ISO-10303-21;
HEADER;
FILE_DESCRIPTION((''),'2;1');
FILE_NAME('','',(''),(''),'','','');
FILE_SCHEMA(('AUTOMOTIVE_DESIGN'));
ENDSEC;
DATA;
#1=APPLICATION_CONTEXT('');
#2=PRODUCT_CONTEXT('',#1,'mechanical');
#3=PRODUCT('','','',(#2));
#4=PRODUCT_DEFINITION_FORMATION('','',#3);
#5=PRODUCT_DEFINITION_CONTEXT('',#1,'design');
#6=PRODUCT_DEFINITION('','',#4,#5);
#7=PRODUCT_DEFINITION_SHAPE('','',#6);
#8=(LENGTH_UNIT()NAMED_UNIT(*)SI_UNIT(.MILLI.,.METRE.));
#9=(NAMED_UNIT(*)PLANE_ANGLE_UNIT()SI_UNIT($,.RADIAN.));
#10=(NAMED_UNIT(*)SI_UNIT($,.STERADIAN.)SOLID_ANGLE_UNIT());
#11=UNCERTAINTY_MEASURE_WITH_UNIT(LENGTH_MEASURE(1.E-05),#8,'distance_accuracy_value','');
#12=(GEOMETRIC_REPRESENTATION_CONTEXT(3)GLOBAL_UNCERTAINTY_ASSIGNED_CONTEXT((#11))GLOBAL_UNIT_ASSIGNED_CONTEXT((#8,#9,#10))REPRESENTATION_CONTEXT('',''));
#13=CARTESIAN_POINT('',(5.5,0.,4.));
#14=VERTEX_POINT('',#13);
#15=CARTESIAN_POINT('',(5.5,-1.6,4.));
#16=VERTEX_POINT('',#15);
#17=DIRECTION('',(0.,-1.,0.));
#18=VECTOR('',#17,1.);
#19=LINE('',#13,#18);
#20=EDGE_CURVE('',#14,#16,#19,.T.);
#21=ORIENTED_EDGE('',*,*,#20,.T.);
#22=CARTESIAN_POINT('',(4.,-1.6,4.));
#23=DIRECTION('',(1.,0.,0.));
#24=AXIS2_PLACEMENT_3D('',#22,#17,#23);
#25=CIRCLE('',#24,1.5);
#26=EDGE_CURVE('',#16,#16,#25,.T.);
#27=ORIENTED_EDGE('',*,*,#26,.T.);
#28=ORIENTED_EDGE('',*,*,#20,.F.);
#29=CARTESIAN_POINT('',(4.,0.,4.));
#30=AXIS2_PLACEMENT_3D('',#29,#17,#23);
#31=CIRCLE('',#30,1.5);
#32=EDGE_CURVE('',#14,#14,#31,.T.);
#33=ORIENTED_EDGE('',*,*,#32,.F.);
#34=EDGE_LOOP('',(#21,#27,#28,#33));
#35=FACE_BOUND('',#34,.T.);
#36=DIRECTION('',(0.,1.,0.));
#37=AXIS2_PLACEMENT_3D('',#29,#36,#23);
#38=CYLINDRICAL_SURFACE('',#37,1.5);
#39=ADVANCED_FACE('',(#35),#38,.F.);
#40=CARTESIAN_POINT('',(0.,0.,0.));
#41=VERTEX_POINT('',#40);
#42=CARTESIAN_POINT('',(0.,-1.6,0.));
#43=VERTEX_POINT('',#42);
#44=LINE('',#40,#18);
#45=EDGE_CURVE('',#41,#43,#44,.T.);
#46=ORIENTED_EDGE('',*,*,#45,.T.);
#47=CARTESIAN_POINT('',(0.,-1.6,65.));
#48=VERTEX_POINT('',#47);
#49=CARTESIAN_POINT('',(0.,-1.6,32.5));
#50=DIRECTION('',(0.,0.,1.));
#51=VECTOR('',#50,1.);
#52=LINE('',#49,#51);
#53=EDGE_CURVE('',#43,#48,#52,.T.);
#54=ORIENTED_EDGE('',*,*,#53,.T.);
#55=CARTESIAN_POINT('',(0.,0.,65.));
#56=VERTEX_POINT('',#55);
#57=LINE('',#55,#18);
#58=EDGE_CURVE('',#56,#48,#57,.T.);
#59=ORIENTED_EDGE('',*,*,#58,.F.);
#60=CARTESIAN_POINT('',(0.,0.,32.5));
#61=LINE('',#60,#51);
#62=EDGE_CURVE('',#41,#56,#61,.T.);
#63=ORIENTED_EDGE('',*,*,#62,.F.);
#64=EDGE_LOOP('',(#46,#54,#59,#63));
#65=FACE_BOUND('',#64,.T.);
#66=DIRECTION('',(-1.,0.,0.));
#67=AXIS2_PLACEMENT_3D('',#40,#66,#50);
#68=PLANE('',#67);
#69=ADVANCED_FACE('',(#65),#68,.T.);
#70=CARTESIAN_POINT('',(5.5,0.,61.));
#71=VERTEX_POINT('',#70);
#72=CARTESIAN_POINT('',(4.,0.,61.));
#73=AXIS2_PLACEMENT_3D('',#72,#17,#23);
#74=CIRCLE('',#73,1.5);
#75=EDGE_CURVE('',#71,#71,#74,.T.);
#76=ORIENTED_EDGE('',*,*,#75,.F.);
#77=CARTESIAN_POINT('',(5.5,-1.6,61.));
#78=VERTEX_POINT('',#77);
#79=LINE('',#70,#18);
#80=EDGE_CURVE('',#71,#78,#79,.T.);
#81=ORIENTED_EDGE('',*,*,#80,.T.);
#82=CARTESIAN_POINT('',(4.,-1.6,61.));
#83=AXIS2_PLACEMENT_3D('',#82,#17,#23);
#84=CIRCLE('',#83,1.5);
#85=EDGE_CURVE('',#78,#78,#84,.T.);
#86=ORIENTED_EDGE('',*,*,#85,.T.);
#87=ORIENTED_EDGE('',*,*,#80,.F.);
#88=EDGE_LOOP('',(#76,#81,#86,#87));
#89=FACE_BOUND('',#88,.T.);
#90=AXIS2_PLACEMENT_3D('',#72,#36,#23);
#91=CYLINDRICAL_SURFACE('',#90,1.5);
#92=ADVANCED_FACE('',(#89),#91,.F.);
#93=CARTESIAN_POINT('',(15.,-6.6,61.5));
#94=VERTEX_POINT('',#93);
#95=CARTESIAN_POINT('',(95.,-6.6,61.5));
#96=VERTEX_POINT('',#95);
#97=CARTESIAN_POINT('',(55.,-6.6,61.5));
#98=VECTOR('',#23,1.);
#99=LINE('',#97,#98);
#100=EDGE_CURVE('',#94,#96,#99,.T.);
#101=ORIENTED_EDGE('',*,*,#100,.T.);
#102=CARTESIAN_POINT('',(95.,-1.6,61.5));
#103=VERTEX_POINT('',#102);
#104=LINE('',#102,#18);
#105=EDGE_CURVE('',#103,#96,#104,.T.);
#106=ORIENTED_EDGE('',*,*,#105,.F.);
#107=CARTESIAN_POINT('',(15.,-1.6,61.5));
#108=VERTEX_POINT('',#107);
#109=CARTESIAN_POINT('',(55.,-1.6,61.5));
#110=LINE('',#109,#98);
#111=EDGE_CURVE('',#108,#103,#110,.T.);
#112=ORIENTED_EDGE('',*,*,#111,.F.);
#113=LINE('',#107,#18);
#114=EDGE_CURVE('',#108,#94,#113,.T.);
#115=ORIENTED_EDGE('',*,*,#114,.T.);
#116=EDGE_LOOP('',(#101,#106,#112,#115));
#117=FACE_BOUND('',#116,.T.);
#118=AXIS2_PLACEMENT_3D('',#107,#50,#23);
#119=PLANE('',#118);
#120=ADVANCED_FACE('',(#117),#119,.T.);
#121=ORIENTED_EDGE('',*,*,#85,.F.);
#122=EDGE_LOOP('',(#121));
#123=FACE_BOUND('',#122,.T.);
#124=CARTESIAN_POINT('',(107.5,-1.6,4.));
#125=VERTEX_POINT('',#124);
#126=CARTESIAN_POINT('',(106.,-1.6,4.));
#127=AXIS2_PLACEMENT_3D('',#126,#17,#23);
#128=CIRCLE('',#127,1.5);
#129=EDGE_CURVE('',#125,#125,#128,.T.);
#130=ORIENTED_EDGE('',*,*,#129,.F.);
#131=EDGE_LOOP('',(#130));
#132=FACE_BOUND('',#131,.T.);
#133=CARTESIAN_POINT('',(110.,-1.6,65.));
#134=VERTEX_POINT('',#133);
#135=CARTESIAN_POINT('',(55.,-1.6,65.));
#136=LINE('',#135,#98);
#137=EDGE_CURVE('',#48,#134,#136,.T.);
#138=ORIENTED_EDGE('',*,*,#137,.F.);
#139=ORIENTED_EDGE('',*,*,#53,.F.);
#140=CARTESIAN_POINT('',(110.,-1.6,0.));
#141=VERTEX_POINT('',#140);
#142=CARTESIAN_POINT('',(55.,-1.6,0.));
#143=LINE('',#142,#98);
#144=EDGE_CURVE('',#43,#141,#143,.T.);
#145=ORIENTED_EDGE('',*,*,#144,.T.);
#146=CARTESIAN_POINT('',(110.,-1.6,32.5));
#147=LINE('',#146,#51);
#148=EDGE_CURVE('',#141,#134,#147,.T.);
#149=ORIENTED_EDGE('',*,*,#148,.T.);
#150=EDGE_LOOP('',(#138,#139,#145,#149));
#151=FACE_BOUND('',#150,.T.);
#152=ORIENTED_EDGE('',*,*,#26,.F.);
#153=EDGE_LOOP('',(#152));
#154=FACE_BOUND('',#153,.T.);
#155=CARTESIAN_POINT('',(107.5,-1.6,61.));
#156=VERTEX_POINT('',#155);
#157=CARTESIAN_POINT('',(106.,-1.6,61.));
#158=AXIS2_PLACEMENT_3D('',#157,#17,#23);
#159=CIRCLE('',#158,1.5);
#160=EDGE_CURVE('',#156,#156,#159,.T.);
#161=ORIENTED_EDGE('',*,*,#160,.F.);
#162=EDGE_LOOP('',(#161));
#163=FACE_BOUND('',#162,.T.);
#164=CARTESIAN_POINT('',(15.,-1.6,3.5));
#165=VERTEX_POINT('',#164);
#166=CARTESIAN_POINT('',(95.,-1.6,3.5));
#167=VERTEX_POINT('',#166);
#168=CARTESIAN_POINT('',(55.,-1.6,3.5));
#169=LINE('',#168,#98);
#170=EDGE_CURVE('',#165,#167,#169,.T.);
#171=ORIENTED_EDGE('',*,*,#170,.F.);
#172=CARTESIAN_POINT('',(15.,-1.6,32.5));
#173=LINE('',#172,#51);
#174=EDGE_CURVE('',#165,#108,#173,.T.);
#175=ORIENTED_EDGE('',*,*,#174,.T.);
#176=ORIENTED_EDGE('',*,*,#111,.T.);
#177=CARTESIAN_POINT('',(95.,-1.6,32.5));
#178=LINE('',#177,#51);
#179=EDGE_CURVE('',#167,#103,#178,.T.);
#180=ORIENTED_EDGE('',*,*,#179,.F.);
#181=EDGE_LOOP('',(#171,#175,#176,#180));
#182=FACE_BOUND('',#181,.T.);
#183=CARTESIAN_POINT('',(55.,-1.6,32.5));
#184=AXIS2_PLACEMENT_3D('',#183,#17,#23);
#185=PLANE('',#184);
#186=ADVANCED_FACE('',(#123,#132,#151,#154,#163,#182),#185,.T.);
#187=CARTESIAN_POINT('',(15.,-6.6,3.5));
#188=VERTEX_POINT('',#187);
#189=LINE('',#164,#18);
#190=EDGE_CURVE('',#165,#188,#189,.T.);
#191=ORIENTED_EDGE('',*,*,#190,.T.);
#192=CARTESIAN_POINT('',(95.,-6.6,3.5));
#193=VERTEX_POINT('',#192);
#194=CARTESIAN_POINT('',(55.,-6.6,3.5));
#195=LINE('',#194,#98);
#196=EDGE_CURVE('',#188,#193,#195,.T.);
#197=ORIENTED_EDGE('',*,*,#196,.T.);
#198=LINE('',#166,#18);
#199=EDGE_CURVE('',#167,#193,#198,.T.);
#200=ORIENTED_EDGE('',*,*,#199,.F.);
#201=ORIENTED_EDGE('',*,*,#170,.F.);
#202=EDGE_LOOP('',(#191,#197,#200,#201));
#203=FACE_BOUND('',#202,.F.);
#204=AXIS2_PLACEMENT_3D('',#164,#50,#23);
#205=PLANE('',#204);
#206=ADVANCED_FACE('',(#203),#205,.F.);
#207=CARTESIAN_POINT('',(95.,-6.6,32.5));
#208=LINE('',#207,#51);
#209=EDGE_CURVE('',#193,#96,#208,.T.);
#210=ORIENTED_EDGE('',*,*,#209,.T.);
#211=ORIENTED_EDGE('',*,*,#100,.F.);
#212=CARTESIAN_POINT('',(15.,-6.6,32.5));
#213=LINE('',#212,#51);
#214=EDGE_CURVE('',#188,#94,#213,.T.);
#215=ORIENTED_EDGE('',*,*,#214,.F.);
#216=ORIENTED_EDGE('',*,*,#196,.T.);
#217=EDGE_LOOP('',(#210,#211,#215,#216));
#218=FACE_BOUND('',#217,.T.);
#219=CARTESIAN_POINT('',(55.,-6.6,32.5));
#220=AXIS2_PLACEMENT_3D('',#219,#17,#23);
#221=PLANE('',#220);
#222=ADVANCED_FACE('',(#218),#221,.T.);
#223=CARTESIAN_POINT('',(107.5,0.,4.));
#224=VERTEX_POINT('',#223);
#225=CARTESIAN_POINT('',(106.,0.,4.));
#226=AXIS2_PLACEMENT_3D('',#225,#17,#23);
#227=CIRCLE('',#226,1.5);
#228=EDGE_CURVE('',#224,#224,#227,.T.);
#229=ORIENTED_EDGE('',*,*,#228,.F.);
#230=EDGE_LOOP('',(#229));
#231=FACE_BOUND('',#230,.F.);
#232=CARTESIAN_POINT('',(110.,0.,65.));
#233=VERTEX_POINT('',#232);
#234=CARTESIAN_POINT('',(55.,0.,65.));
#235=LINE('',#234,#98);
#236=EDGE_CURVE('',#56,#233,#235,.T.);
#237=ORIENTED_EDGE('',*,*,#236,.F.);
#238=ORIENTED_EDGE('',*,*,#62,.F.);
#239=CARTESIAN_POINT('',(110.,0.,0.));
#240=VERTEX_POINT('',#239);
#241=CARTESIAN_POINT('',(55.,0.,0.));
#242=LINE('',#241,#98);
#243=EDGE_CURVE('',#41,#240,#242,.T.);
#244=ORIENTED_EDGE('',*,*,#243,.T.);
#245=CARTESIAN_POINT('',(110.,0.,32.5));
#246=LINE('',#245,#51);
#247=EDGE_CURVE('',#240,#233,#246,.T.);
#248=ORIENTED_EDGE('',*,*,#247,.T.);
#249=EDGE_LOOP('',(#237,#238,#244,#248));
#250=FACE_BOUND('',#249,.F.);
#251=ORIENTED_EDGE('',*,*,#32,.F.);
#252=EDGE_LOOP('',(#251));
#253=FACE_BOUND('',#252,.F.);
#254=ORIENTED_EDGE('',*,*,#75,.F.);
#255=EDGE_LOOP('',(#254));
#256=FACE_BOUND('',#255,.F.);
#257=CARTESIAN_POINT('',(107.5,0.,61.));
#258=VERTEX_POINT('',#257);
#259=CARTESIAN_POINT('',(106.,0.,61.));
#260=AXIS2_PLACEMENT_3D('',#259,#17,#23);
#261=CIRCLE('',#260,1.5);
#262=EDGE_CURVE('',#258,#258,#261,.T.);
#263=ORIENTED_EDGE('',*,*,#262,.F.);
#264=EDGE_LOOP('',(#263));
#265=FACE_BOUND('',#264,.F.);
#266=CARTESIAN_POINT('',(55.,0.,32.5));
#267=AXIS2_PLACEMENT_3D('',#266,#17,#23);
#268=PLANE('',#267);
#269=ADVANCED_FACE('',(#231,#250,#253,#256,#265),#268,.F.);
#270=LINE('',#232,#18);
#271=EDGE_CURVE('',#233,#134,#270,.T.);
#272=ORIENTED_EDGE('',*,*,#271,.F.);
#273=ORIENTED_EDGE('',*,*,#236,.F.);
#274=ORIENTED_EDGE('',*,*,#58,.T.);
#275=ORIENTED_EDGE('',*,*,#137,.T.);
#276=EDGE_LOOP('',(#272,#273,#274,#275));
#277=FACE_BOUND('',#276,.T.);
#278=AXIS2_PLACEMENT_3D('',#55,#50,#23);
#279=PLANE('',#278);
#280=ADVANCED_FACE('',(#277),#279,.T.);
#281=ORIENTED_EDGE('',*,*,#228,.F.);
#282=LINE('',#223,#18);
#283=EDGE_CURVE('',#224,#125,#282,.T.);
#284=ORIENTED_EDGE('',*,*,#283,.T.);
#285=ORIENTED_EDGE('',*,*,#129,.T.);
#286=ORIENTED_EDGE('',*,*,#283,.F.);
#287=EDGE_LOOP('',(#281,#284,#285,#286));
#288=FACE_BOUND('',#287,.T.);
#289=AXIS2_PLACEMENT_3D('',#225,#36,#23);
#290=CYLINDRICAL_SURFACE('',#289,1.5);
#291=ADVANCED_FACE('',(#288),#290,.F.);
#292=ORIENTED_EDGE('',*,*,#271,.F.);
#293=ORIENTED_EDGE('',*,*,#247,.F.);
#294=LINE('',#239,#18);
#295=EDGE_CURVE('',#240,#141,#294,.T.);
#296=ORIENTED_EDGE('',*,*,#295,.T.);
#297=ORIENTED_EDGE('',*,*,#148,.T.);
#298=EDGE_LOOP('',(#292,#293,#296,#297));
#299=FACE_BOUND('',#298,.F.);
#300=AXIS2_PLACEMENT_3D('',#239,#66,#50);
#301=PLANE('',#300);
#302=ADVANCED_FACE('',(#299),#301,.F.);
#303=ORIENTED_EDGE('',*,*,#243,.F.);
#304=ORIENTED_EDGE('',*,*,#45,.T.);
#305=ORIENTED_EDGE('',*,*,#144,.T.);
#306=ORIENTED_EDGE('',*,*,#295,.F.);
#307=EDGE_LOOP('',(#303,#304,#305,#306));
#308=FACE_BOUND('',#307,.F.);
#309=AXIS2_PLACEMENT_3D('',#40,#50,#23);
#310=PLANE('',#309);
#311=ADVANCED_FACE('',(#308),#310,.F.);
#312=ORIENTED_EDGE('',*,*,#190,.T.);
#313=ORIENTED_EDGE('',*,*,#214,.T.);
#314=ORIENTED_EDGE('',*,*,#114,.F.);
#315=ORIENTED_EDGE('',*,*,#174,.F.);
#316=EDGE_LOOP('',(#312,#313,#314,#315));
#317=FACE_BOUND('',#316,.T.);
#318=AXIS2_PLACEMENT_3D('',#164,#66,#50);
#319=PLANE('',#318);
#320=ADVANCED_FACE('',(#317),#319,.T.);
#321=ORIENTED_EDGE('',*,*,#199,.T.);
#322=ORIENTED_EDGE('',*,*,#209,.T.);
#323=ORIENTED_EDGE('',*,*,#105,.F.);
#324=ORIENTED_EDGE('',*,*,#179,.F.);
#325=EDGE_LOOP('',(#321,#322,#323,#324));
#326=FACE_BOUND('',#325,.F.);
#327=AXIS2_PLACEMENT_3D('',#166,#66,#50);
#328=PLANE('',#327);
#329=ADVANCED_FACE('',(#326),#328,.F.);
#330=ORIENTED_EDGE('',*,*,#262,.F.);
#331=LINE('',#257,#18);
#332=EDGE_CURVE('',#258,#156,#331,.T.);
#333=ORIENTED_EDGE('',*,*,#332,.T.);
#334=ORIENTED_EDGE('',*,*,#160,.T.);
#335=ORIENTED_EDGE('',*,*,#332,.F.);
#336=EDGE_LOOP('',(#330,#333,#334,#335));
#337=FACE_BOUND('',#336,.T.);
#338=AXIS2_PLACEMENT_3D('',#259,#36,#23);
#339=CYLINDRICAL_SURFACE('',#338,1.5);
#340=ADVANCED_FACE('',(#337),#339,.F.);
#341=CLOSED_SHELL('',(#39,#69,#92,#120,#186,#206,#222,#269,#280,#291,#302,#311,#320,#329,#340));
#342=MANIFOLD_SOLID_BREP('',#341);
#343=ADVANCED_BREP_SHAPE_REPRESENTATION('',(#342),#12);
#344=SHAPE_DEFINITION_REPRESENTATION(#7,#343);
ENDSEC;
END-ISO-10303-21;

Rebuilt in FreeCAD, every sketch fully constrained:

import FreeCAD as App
import Part
import Sketcher

V = App.Vector

doc = App.newDocument("Part")
body = doc.addObject("PartDesign::Body", "Body")

sketch1 = body.newObject("Sketcher::SketchObject", "Sketch")
sketch1.AttachmentSupport = (doc.getObject("XZ_Plane"), [""])
sketch1.MapMode = "FlatFace"
sketch1.addGeometry(Part.LineSegment(V(0, 65, 0), V(0, 0, 0)), False)
sketch1.addGeometry(Part.LineSegment(V(0, 0, 0), V(110, 0, 0)), False)
sketch1.addGeometry(Part.LineSegment(V(110, 0, 0), V(110, 65, 0)), False)
sketch1.addGeometry(Part.LineSegment(V(110, 65, 0), V(0, 65, 0)), False)
sketch1.addGeometry(Part.Circle(V(4, 4, 0), V(0, 0, 1), 1.5), False)
sketch1.addGeometry(Part.Circle(V(106, 4, 0), V(0, 0, 1), 1.5), False)
sketch1.addGeometry(Part.Circle(V(4, 61, 0), V(0, 0, 1), 1.5), False)
sketch1.addGeometry(Part.Circle(V(106, 61, 0), V(0, 0, 1), 1.5), False)
sketch1.addConstraint(Sketcher.Constraint("Coincident", 0, 2, 1, 1))
sketch1.addConstraint(Sketcher.Constraint("Coincident", 1, 2, 2, 1))
sketch1.addConstraint(Sketcher.Constraint("Coincident", 2, 2, 3, 1))
sketch1.addConstraint(Sketcher.Constraint("Coincident", 3, 2, 0, 1))
sketch1.addConstraint(Sketcher.Constraint("Vertical", 0))
sketch1.addConstraint(Sketcher.Constraint("Horizontal", 1))
sketch1.addConstraint(Sketcher.Constraint("Vertical", 2))
sketch1.addConstraint(Sketcher.Constraint("Horizontal", 3))
sketch1.addConstraint(Sketcher.Constraint("Coincident", 0, 2, -1, 1))
sketch1.addConstraint(Sketcher.Constraint("Equal", 4, 5))
sketch1.addConstraint(Sketcher.Constraint("Equal", 5, 6))
sketch1.addConstraint(Sketcher.Constraint("Equal", 6, 7))
sketch1.addConstraint(Sketcher.Constraint("Horizontal", 4, 3, 5, 3))
sketch1.addConstraint(Sketcher.Constraint("Horizontal", 6, 3, 7, 3))
sketch1.addConstraint(Sketcher.Constraint("Vertical", 4, 3, 6, 3))
sketch1.addConstraint(Sketcher.Constraint("Vertical", 5, 3, 7, 3))
sketch1.addConstraint(Sketcher.Constraint("Diameter", 4, 3.0))
sketch1.addConstraint(Sketcher.Constraint("DistanceX", 1, 1, 1, 2, 110.0))
sketch1.addConstraint(Sketcher.Constraint("DistanceY", 0, 2, 0, 1, 65.0))
sketch1.addConstraint(Sketcher.Constraint("DistanceX", -1, 1, 4, 3, 4.0))
sketch1.addConstraint(Sketcher.Constraint("DistanceY", -1, 1, 4, 3, 4.0))
sketch1.addConstraint(Sketcher.Constraint("DistanceX", -1, 1, 5, 3, 106.0))
sketch1.addConstraint(Sketcher.Constraint("DistanceY", -1, 1, 6, 3, 61.0))
pad1 = body.newObject("PartDesign::Pad", "Pad")
pad1.Profile = sketch1
pad1.Length = 1.6

sketch2 = body.newObject("Sketcher::SketchObject", "Sketch001")
sketch2.AttachmentSupport = (doc.getObject("XZ_Plane"), [""])
sketch2.MapMode = "FlatFace"
sketch2.AttachmentOffset = App.Placement(V(0, 0, 1.6), App.Rotation())
sketch2.addGeometry(Part.LineSegment(V(15, 62, 0), V(15, 4, 0)), False)
sketch2.addGeometry(Part.LineSegment(V(15, 4, 0), V(95, 4, 0)), False)
sketch2.addGeometry(Part.LineSegment(V(95, 4, 0), V(95, 62, 0)), False)
sketch2.addGeometry(Part.LineSegment(V(95, 62, 0), V(15, 62, 0)), False)
sketch2.addConstraint(Sketcher.Constraint("Coincident", 0, 2, 1, 1))
sketch2.addConstraint(Sketcher.Constraint("Coincident", 1, 2, 2, 1))
sketch2.addConstraint(Sketcher.Constraint("Coincident", 2, 2, 3, 1))
sketch2.addConstraint(Sketcher.Constraint("Coincident", 3, 2, 0, 1))
sketch2.addConstraint(Sketcher.Constraint("Vertical", 0))
sketch2.addConstraint(Sketcher.Constraint("Horizontal", 1))
sketch2.addConstraint(Sketcher.Constraint("Vertical", 2))
sketch2.addConstraint(Sketcher.Constraint("Horizontal", 3))
sketch2.addConstraint(Sketcher.Constraint("DistanceX", 1, 1, 1, 2, 80.0))
sketch2.addConstraint(Sketcher.Constraint("DistanceY", 0, 2, 0, 1, 58.0))
sketch2.addConstraint(Sketcher.Constraint("DistanceX", -1, 1, 0, 2, 15.0))
sketch2.addConstraint(Sketcher.Constraint("DistanceY", -1, 1, 0, 2, 3.5))
pad2 = body.newObject("PartDesign::Pad", "Pad001")
pad2.Profile = sketch2
pad2.Length = 5

doc.recompute()
